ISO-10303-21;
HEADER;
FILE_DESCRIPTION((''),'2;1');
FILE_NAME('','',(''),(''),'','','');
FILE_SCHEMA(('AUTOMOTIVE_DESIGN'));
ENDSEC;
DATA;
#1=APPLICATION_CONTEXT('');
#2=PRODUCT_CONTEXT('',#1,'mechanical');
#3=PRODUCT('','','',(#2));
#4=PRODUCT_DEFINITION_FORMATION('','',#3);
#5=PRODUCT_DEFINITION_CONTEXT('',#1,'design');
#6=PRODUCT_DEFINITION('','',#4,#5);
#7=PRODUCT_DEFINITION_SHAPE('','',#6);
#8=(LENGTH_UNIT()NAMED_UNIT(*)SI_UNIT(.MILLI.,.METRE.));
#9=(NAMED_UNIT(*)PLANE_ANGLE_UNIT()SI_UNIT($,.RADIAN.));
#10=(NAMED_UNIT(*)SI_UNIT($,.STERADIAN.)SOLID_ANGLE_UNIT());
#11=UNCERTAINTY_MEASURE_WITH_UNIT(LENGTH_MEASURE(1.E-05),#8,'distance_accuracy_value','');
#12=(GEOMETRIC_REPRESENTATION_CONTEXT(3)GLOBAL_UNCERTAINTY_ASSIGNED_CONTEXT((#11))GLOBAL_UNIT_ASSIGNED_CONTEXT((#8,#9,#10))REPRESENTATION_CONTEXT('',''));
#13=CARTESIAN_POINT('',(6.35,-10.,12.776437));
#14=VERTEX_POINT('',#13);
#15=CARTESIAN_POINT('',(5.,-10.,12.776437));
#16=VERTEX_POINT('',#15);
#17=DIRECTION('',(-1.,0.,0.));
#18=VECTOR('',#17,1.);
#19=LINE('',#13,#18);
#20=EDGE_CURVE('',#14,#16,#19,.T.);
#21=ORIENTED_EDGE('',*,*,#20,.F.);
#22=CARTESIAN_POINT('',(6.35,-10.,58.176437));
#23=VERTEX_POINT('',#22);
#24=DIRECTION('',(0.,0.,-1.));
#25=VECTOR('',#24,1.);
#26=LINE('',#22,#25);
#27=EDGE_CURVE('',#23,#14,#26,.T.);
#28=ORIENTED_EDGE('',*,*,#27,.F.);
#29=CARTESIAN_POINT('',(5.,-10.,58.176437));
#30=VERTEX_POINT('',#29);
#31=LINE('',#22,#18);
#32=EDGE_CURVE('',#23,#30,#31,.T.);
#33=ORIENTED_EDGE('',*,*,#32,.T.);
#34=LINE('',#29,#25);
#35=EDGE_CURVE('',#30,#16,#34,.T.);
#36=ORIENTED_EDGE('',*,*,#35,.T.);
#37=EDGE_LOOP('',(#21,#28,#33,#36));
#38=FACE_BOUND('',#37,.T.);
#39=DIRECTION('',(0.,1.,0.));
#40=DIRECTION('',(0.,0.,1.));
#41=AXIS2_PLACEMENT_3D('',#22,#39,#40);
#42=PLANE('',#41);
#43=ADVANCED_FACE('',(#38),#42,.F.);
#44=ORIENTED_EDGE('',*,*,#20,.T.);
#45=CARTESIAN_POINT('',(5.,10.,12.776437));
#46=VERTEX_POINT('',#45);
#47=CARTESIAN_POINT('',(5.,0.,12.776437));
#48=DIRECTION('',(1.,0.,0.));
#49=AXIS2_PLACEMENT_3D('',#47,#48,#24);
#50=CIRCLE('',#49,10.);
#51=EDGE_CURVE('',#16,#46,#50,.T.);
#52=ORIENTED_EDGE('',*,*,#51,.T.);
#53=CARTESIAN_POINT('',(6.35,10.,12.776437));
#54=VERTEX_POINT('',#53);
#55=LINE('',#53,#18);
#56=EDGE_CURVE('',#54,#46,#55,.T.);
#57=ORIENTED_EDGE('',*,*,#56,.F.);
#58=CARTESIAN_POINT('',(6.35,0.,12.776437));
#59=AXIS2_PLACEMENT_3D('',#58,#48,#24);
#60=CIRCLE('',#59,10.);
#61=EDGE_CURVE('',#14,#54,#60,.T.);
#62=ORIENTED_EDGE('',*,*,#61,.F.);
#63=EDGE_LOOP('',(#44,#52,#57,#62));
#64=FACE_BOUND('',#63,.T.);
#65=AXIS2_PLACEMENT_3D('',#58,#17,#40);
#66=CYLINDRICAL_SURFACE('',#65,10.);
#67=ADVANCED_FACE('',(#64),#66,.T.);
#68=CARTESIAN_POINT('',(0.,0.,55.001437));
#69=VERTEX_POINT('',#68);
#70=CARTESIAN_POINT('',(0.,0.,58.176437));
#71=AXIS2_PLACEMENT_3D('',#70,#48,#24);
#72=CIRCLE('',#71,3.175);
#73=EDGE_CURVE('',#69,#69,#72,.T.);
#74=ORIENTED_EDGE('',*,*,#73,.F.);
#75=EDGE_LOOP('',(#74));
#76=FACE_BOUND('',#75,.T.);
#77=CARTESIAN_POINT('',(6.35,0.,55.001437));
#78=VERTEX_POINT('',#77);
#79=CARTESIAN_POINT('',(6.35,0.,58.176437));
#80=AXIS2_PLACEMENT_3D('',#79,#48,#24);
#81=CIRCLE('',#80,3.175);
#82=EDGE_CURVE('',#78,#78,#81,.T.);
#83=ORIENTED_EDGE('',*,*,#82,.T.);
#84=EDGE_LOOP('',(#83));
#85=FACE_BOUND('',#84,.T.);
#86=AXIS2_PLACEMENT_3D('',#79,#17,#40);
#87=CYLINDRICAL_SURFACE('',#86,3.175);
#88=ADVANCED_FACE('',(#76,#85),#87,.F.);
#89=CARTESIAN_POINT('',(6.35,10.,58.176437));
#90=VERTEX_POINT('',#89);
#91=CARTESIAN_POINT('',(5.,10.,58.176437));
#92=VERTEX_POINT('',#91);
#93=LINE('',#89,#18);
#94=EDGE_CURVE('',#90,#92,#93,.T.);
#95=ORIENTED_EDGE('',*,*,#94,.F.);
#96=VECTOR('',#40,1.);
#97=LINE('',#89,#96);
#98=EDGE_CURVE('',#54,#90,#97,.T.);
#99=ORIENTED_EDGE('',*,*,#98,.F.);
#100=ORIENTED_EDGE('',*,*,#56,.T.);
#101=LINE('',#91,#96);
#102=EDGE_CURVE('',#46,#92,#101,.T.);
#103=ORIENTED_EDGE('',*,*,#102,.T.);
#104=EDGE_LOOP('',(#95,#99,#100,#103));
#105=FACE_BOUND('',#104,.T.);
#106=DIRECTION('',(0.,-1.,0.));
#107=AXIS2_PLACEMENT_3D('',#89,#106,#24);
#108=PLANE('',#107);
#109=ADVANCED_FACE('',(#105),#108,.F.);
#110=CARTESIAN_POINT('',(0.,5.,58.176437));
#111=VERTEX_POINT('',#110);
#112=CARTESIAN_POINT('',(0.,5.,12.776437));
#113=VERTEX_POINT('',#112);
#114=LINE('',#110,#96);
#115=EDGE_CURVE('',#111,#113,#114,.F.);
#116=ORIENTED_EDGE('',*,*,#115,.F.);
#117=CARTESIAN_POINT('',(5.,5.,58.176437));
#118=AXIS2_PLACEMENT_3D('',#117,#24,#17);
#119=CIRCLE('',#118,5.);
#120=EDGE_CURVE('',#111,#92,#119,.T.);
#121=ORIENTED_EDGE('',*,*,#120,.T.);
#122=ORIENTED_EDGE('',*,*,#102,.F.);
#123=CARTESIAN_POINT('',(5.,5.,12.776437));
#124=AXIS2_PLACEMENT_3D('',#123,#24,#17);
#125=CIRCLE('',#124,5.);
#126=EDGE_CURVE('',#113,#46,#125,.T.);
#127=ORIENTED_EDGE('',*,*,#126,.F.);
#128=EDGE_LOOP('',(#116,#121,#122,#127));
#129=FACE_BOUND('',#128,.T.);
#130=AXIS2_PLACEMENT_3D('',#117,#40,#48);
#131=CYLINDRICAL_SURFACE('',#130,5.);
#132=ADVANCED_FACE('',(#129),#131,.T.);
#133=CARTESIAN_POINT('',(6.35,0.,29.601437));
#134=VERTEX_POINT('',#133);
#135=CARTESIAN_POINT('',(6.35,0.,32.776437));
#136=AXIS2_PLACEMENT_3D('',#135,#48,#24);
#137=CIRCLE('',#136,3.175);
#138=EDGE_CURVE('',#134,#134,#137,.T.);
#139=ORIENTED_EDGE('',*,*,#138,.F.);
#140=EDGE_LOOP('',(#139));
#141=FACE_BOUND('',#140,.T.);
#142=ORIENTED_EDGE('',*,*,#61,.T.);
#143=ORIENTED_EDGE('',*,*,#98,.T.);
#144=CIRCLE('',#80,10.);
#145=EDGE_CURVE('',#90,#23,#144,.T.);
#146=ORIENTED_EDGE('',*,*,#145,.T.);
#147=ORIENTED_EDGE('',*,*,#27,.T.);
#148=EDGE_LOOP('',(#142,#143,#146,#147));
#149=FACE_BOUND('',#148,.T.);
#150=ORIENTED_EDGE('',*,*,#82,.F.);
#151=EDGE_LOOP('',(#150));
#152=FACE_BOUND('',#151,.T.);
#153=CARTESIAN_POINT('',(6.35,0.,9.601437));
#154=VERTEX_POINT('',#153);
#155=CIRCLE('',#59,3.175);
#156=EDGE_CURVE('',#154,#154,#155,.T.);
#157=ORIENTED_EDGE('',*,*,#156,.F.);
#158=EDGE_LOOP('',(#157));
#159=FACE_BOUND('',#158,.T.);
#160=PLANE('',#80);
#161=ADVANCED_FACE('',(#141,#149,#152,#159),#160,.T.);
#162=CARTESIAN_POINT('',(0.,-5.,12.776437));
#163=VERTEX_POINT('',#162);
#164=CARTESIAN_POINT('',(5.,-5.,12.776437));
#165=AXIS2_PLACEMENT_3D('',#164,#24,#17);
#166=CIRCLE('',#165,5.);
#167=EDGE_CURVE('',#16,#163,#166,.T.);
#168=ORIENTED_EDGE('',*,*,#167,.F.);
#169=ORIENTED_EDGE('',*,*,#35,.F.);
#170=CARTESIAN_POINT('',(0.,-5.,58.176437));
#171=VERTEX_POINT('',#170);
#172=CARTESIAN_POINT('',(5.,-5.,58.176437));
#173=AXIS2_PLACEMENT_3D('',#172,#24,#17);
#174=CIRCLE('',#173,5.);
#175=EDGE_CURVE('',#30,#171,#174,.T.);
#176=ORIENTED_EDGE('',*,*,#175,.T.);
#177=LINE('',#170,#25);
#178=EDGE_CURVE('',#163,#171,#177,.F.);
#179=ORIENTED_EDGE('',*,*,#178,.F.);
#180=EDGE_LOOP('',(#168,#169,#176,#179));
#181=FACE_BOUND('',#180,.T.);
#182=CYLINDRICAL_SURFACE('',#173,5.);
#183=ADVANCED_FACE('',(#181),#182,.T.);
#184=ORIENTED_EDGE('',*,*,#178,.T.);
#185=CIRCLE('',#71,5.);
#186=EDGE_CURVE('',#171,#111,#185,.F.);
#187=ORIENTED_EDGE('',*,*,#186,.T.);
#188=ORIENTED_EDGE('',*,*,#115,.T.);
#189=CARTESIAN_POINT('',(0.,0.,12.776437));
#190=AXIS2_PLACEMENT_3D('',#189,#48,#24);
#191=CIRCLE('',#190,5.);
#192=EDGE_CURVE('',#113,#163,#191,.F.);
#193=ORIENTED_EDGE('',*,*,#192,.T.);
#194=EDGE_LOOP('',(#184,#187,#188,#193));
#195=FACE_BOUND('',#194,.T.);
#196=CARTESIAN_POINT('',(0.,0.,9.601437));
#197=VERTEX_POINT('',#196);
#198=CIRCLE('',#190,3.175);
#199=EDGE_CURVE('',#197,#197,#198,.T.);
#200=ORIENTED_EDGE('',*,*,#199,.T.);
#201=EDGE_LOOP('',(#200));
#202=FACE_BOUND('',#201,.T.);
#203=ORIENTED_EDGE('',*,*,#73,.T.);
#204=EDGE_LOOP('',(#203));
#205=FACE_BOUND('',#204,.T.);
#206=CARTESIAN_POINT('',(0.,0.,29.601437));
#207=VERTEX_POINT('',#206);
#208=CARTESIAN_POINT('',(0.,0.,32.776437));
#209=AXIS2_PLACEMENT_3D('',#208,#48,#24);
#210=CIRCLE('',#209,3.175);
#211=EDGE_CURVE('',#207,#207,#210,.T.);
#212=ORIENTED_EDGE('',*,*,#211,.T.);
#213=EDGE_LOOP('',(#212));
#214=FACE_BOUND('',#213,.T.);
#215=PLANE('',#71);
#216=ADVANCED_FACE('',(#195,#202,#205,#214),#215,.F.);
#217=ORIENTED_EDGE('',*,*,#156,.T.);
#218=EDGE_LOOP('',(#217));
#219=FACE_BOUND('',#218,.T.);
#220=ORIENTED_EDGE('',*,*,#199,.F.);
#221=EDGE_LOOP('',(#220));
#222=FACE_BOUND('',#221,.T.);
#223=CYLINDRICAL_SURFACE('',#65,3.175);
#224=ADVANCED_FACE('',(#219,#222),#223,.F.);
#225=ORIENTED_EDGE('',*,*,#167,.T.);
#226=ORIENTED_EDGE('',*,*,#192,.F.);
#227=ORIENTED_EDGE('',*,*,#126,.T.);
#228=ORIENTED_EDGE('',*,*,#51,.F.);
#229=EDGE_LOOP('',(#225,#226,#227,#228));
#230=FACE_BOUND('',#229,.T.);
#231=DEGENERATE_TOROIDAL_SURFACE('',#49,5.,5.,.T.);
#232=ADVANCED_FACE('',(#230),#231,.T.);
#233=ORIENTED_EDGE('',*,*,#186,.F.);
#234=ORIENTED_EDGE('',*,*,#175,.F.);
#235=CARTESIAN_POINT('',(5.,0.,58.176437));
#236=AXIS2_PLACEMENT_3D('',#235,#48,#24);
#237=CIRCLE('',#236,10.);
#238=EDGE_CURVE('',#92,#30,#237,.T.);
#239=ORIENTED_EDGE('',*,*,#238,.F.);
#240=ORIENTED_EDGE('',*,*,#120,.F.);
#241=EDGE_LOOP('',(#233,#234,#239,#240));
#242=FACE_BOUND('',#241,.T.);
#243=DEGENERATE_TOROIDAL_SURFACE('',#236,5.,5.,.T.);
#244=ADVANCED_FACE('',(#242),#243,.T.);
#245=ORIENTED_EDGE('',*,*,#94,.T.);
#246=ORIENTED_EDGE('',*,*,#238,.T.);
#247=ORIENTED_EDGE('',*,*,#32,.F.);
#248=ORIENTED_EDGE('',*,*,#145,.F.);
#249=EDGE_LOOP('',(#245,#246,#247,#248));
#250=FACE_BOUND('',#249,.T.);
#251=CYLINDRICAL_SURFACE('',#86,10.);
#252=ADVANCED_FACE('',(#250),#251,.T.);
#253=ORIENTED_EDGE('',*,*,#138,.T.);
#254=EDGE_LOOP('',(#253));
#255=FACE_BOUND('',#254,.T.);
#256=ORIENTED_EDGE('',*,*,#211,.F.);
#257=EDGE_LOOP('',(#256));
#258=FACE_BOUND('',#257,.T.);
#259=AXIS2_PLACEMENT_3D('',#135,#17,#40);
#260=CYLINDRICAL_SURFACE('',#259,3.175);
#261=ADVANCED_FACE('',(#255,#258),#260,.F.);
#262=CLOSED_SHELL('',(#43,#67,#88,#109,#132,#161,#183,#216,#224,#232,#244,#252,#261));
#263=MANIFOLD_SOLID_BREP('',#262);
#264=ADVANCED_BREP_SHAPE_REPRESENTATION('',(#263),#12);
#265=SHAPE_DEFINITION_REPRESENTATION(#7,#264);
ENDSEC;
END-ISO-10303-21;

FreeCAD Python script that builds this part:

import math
import FreeCAD as App
import Part
import Sketcher

V = App.Vector
Q = App.Units.Quantity


def edges_at(feature, points):
    """Names of the edges that pass closest to the given points."""
    edges = feature.Shape.Edges
    near = lambda p: min(range(len(edges)), key=lambda i: edges[i].distToShape(Part.Vertex(*p))[0])
    return sorted({f"Edge{near(p) + 1}" for p in points})

doc = App.newDocument("Part")
body = doc.addObject("PartDesign::Body", "Body")

# Sketch on YZ plane
sketch1 = body.newObject("Sketcher::SketchObject", "Sketch")
sketch1.AttachmentSupport = (doc.getObject("YZ_Plane"), [""])
sketch1.MapMode = "FlatFace"
sketch1.addGeometry([
    Part.LineSegment(V(10, 12.8, 0), V(10, 58.2, 0)),  # 0
    Part.ArcOfCircle(Part.Circle(V(0, 58.2, 0), V(0, 0, 1), 10), math.radians(0), math.radians(180)),  # 1
    Part.LineSegment(V(-10, 58.2, 0), V(-10, 12.8, 0)),  # 2
    Part.ArcOfCircle(Part.Circle(V(0, 12.8, 0), V(0, 0, 1), 10), math.radians(180), math.radians(360)),  # 3
    Part.Circle(V(0, 12.8, 0), V(0, 0, 1), 3.2),  # 4
    Part.Circle(V(0, 32.8, 0), V(0, 0, 1), 3.2),  # 5
    Part.Circle(V(0, 58.2, 0), V(0, 0, 1), 3.2),  # 6
], False)
sketch1.addConstraint([
    Sketcher.Constraint("Tangent", 0, 2, 1, 1),
    Sketcher.Constraint("Tangent", 1, 2, 2, 1),
    Sketcher.Constraint("Tangent", 2, 2, 3, 1),
    Sketcher.Constraint("Tangent", 3, 2, 0, 1),
    Sketcher.Constraint("Vertical", 0),
    Sketcher.Constraint("Vertical", 2),
    Sketcher.Constraint("Coincident", 4, 3, 3, 3),
    Sketcher.Constraint("Coincident", 6, 3, 1, 3),
    Sketcher.Constraint("Equal", 4, 5),
    Sketcher.Constraint("Equal", 5, 6),
    Sketcher.Constraint("PointOnObject", 1, 3, -2),
    Sketcher.Constraint("PointOnObject", 5, 3, -2),
    Sketcher.Constraint("Radius", 1, Q("10 mm")),
    Sketcher.Constraint("Diameter", 4, Q("6.35 mm")),
    Sketcher.Constraint("DistanceY", 0, 1, 0, 2, Q("45.4 mm")),
    Sketcher.Constraint("DistanceY", 3, 3, 5, 3, Q("20 mm")),
    Sketcher.Constraint("DistanceY", -1, 1, 1, 3, Q("58.176437 mm")),
])
pad1 = body.newObject("PartDesign::Pad", "Pad")
pad1.Profile = sketch1
pad1.Length = 6.35
doc.recompute()

fillet = body.newObject("PartDesign::Fillet", "Fillet")
fillet.Base = (pad1, edges_at(pad1, [
    (0, 10, 35.476),
    (0, 0, 2.776),
    (0, -10, 35.476),
    (0, 0, 68.176),
]))
fillet.Radius = 5

doc.recompute()
